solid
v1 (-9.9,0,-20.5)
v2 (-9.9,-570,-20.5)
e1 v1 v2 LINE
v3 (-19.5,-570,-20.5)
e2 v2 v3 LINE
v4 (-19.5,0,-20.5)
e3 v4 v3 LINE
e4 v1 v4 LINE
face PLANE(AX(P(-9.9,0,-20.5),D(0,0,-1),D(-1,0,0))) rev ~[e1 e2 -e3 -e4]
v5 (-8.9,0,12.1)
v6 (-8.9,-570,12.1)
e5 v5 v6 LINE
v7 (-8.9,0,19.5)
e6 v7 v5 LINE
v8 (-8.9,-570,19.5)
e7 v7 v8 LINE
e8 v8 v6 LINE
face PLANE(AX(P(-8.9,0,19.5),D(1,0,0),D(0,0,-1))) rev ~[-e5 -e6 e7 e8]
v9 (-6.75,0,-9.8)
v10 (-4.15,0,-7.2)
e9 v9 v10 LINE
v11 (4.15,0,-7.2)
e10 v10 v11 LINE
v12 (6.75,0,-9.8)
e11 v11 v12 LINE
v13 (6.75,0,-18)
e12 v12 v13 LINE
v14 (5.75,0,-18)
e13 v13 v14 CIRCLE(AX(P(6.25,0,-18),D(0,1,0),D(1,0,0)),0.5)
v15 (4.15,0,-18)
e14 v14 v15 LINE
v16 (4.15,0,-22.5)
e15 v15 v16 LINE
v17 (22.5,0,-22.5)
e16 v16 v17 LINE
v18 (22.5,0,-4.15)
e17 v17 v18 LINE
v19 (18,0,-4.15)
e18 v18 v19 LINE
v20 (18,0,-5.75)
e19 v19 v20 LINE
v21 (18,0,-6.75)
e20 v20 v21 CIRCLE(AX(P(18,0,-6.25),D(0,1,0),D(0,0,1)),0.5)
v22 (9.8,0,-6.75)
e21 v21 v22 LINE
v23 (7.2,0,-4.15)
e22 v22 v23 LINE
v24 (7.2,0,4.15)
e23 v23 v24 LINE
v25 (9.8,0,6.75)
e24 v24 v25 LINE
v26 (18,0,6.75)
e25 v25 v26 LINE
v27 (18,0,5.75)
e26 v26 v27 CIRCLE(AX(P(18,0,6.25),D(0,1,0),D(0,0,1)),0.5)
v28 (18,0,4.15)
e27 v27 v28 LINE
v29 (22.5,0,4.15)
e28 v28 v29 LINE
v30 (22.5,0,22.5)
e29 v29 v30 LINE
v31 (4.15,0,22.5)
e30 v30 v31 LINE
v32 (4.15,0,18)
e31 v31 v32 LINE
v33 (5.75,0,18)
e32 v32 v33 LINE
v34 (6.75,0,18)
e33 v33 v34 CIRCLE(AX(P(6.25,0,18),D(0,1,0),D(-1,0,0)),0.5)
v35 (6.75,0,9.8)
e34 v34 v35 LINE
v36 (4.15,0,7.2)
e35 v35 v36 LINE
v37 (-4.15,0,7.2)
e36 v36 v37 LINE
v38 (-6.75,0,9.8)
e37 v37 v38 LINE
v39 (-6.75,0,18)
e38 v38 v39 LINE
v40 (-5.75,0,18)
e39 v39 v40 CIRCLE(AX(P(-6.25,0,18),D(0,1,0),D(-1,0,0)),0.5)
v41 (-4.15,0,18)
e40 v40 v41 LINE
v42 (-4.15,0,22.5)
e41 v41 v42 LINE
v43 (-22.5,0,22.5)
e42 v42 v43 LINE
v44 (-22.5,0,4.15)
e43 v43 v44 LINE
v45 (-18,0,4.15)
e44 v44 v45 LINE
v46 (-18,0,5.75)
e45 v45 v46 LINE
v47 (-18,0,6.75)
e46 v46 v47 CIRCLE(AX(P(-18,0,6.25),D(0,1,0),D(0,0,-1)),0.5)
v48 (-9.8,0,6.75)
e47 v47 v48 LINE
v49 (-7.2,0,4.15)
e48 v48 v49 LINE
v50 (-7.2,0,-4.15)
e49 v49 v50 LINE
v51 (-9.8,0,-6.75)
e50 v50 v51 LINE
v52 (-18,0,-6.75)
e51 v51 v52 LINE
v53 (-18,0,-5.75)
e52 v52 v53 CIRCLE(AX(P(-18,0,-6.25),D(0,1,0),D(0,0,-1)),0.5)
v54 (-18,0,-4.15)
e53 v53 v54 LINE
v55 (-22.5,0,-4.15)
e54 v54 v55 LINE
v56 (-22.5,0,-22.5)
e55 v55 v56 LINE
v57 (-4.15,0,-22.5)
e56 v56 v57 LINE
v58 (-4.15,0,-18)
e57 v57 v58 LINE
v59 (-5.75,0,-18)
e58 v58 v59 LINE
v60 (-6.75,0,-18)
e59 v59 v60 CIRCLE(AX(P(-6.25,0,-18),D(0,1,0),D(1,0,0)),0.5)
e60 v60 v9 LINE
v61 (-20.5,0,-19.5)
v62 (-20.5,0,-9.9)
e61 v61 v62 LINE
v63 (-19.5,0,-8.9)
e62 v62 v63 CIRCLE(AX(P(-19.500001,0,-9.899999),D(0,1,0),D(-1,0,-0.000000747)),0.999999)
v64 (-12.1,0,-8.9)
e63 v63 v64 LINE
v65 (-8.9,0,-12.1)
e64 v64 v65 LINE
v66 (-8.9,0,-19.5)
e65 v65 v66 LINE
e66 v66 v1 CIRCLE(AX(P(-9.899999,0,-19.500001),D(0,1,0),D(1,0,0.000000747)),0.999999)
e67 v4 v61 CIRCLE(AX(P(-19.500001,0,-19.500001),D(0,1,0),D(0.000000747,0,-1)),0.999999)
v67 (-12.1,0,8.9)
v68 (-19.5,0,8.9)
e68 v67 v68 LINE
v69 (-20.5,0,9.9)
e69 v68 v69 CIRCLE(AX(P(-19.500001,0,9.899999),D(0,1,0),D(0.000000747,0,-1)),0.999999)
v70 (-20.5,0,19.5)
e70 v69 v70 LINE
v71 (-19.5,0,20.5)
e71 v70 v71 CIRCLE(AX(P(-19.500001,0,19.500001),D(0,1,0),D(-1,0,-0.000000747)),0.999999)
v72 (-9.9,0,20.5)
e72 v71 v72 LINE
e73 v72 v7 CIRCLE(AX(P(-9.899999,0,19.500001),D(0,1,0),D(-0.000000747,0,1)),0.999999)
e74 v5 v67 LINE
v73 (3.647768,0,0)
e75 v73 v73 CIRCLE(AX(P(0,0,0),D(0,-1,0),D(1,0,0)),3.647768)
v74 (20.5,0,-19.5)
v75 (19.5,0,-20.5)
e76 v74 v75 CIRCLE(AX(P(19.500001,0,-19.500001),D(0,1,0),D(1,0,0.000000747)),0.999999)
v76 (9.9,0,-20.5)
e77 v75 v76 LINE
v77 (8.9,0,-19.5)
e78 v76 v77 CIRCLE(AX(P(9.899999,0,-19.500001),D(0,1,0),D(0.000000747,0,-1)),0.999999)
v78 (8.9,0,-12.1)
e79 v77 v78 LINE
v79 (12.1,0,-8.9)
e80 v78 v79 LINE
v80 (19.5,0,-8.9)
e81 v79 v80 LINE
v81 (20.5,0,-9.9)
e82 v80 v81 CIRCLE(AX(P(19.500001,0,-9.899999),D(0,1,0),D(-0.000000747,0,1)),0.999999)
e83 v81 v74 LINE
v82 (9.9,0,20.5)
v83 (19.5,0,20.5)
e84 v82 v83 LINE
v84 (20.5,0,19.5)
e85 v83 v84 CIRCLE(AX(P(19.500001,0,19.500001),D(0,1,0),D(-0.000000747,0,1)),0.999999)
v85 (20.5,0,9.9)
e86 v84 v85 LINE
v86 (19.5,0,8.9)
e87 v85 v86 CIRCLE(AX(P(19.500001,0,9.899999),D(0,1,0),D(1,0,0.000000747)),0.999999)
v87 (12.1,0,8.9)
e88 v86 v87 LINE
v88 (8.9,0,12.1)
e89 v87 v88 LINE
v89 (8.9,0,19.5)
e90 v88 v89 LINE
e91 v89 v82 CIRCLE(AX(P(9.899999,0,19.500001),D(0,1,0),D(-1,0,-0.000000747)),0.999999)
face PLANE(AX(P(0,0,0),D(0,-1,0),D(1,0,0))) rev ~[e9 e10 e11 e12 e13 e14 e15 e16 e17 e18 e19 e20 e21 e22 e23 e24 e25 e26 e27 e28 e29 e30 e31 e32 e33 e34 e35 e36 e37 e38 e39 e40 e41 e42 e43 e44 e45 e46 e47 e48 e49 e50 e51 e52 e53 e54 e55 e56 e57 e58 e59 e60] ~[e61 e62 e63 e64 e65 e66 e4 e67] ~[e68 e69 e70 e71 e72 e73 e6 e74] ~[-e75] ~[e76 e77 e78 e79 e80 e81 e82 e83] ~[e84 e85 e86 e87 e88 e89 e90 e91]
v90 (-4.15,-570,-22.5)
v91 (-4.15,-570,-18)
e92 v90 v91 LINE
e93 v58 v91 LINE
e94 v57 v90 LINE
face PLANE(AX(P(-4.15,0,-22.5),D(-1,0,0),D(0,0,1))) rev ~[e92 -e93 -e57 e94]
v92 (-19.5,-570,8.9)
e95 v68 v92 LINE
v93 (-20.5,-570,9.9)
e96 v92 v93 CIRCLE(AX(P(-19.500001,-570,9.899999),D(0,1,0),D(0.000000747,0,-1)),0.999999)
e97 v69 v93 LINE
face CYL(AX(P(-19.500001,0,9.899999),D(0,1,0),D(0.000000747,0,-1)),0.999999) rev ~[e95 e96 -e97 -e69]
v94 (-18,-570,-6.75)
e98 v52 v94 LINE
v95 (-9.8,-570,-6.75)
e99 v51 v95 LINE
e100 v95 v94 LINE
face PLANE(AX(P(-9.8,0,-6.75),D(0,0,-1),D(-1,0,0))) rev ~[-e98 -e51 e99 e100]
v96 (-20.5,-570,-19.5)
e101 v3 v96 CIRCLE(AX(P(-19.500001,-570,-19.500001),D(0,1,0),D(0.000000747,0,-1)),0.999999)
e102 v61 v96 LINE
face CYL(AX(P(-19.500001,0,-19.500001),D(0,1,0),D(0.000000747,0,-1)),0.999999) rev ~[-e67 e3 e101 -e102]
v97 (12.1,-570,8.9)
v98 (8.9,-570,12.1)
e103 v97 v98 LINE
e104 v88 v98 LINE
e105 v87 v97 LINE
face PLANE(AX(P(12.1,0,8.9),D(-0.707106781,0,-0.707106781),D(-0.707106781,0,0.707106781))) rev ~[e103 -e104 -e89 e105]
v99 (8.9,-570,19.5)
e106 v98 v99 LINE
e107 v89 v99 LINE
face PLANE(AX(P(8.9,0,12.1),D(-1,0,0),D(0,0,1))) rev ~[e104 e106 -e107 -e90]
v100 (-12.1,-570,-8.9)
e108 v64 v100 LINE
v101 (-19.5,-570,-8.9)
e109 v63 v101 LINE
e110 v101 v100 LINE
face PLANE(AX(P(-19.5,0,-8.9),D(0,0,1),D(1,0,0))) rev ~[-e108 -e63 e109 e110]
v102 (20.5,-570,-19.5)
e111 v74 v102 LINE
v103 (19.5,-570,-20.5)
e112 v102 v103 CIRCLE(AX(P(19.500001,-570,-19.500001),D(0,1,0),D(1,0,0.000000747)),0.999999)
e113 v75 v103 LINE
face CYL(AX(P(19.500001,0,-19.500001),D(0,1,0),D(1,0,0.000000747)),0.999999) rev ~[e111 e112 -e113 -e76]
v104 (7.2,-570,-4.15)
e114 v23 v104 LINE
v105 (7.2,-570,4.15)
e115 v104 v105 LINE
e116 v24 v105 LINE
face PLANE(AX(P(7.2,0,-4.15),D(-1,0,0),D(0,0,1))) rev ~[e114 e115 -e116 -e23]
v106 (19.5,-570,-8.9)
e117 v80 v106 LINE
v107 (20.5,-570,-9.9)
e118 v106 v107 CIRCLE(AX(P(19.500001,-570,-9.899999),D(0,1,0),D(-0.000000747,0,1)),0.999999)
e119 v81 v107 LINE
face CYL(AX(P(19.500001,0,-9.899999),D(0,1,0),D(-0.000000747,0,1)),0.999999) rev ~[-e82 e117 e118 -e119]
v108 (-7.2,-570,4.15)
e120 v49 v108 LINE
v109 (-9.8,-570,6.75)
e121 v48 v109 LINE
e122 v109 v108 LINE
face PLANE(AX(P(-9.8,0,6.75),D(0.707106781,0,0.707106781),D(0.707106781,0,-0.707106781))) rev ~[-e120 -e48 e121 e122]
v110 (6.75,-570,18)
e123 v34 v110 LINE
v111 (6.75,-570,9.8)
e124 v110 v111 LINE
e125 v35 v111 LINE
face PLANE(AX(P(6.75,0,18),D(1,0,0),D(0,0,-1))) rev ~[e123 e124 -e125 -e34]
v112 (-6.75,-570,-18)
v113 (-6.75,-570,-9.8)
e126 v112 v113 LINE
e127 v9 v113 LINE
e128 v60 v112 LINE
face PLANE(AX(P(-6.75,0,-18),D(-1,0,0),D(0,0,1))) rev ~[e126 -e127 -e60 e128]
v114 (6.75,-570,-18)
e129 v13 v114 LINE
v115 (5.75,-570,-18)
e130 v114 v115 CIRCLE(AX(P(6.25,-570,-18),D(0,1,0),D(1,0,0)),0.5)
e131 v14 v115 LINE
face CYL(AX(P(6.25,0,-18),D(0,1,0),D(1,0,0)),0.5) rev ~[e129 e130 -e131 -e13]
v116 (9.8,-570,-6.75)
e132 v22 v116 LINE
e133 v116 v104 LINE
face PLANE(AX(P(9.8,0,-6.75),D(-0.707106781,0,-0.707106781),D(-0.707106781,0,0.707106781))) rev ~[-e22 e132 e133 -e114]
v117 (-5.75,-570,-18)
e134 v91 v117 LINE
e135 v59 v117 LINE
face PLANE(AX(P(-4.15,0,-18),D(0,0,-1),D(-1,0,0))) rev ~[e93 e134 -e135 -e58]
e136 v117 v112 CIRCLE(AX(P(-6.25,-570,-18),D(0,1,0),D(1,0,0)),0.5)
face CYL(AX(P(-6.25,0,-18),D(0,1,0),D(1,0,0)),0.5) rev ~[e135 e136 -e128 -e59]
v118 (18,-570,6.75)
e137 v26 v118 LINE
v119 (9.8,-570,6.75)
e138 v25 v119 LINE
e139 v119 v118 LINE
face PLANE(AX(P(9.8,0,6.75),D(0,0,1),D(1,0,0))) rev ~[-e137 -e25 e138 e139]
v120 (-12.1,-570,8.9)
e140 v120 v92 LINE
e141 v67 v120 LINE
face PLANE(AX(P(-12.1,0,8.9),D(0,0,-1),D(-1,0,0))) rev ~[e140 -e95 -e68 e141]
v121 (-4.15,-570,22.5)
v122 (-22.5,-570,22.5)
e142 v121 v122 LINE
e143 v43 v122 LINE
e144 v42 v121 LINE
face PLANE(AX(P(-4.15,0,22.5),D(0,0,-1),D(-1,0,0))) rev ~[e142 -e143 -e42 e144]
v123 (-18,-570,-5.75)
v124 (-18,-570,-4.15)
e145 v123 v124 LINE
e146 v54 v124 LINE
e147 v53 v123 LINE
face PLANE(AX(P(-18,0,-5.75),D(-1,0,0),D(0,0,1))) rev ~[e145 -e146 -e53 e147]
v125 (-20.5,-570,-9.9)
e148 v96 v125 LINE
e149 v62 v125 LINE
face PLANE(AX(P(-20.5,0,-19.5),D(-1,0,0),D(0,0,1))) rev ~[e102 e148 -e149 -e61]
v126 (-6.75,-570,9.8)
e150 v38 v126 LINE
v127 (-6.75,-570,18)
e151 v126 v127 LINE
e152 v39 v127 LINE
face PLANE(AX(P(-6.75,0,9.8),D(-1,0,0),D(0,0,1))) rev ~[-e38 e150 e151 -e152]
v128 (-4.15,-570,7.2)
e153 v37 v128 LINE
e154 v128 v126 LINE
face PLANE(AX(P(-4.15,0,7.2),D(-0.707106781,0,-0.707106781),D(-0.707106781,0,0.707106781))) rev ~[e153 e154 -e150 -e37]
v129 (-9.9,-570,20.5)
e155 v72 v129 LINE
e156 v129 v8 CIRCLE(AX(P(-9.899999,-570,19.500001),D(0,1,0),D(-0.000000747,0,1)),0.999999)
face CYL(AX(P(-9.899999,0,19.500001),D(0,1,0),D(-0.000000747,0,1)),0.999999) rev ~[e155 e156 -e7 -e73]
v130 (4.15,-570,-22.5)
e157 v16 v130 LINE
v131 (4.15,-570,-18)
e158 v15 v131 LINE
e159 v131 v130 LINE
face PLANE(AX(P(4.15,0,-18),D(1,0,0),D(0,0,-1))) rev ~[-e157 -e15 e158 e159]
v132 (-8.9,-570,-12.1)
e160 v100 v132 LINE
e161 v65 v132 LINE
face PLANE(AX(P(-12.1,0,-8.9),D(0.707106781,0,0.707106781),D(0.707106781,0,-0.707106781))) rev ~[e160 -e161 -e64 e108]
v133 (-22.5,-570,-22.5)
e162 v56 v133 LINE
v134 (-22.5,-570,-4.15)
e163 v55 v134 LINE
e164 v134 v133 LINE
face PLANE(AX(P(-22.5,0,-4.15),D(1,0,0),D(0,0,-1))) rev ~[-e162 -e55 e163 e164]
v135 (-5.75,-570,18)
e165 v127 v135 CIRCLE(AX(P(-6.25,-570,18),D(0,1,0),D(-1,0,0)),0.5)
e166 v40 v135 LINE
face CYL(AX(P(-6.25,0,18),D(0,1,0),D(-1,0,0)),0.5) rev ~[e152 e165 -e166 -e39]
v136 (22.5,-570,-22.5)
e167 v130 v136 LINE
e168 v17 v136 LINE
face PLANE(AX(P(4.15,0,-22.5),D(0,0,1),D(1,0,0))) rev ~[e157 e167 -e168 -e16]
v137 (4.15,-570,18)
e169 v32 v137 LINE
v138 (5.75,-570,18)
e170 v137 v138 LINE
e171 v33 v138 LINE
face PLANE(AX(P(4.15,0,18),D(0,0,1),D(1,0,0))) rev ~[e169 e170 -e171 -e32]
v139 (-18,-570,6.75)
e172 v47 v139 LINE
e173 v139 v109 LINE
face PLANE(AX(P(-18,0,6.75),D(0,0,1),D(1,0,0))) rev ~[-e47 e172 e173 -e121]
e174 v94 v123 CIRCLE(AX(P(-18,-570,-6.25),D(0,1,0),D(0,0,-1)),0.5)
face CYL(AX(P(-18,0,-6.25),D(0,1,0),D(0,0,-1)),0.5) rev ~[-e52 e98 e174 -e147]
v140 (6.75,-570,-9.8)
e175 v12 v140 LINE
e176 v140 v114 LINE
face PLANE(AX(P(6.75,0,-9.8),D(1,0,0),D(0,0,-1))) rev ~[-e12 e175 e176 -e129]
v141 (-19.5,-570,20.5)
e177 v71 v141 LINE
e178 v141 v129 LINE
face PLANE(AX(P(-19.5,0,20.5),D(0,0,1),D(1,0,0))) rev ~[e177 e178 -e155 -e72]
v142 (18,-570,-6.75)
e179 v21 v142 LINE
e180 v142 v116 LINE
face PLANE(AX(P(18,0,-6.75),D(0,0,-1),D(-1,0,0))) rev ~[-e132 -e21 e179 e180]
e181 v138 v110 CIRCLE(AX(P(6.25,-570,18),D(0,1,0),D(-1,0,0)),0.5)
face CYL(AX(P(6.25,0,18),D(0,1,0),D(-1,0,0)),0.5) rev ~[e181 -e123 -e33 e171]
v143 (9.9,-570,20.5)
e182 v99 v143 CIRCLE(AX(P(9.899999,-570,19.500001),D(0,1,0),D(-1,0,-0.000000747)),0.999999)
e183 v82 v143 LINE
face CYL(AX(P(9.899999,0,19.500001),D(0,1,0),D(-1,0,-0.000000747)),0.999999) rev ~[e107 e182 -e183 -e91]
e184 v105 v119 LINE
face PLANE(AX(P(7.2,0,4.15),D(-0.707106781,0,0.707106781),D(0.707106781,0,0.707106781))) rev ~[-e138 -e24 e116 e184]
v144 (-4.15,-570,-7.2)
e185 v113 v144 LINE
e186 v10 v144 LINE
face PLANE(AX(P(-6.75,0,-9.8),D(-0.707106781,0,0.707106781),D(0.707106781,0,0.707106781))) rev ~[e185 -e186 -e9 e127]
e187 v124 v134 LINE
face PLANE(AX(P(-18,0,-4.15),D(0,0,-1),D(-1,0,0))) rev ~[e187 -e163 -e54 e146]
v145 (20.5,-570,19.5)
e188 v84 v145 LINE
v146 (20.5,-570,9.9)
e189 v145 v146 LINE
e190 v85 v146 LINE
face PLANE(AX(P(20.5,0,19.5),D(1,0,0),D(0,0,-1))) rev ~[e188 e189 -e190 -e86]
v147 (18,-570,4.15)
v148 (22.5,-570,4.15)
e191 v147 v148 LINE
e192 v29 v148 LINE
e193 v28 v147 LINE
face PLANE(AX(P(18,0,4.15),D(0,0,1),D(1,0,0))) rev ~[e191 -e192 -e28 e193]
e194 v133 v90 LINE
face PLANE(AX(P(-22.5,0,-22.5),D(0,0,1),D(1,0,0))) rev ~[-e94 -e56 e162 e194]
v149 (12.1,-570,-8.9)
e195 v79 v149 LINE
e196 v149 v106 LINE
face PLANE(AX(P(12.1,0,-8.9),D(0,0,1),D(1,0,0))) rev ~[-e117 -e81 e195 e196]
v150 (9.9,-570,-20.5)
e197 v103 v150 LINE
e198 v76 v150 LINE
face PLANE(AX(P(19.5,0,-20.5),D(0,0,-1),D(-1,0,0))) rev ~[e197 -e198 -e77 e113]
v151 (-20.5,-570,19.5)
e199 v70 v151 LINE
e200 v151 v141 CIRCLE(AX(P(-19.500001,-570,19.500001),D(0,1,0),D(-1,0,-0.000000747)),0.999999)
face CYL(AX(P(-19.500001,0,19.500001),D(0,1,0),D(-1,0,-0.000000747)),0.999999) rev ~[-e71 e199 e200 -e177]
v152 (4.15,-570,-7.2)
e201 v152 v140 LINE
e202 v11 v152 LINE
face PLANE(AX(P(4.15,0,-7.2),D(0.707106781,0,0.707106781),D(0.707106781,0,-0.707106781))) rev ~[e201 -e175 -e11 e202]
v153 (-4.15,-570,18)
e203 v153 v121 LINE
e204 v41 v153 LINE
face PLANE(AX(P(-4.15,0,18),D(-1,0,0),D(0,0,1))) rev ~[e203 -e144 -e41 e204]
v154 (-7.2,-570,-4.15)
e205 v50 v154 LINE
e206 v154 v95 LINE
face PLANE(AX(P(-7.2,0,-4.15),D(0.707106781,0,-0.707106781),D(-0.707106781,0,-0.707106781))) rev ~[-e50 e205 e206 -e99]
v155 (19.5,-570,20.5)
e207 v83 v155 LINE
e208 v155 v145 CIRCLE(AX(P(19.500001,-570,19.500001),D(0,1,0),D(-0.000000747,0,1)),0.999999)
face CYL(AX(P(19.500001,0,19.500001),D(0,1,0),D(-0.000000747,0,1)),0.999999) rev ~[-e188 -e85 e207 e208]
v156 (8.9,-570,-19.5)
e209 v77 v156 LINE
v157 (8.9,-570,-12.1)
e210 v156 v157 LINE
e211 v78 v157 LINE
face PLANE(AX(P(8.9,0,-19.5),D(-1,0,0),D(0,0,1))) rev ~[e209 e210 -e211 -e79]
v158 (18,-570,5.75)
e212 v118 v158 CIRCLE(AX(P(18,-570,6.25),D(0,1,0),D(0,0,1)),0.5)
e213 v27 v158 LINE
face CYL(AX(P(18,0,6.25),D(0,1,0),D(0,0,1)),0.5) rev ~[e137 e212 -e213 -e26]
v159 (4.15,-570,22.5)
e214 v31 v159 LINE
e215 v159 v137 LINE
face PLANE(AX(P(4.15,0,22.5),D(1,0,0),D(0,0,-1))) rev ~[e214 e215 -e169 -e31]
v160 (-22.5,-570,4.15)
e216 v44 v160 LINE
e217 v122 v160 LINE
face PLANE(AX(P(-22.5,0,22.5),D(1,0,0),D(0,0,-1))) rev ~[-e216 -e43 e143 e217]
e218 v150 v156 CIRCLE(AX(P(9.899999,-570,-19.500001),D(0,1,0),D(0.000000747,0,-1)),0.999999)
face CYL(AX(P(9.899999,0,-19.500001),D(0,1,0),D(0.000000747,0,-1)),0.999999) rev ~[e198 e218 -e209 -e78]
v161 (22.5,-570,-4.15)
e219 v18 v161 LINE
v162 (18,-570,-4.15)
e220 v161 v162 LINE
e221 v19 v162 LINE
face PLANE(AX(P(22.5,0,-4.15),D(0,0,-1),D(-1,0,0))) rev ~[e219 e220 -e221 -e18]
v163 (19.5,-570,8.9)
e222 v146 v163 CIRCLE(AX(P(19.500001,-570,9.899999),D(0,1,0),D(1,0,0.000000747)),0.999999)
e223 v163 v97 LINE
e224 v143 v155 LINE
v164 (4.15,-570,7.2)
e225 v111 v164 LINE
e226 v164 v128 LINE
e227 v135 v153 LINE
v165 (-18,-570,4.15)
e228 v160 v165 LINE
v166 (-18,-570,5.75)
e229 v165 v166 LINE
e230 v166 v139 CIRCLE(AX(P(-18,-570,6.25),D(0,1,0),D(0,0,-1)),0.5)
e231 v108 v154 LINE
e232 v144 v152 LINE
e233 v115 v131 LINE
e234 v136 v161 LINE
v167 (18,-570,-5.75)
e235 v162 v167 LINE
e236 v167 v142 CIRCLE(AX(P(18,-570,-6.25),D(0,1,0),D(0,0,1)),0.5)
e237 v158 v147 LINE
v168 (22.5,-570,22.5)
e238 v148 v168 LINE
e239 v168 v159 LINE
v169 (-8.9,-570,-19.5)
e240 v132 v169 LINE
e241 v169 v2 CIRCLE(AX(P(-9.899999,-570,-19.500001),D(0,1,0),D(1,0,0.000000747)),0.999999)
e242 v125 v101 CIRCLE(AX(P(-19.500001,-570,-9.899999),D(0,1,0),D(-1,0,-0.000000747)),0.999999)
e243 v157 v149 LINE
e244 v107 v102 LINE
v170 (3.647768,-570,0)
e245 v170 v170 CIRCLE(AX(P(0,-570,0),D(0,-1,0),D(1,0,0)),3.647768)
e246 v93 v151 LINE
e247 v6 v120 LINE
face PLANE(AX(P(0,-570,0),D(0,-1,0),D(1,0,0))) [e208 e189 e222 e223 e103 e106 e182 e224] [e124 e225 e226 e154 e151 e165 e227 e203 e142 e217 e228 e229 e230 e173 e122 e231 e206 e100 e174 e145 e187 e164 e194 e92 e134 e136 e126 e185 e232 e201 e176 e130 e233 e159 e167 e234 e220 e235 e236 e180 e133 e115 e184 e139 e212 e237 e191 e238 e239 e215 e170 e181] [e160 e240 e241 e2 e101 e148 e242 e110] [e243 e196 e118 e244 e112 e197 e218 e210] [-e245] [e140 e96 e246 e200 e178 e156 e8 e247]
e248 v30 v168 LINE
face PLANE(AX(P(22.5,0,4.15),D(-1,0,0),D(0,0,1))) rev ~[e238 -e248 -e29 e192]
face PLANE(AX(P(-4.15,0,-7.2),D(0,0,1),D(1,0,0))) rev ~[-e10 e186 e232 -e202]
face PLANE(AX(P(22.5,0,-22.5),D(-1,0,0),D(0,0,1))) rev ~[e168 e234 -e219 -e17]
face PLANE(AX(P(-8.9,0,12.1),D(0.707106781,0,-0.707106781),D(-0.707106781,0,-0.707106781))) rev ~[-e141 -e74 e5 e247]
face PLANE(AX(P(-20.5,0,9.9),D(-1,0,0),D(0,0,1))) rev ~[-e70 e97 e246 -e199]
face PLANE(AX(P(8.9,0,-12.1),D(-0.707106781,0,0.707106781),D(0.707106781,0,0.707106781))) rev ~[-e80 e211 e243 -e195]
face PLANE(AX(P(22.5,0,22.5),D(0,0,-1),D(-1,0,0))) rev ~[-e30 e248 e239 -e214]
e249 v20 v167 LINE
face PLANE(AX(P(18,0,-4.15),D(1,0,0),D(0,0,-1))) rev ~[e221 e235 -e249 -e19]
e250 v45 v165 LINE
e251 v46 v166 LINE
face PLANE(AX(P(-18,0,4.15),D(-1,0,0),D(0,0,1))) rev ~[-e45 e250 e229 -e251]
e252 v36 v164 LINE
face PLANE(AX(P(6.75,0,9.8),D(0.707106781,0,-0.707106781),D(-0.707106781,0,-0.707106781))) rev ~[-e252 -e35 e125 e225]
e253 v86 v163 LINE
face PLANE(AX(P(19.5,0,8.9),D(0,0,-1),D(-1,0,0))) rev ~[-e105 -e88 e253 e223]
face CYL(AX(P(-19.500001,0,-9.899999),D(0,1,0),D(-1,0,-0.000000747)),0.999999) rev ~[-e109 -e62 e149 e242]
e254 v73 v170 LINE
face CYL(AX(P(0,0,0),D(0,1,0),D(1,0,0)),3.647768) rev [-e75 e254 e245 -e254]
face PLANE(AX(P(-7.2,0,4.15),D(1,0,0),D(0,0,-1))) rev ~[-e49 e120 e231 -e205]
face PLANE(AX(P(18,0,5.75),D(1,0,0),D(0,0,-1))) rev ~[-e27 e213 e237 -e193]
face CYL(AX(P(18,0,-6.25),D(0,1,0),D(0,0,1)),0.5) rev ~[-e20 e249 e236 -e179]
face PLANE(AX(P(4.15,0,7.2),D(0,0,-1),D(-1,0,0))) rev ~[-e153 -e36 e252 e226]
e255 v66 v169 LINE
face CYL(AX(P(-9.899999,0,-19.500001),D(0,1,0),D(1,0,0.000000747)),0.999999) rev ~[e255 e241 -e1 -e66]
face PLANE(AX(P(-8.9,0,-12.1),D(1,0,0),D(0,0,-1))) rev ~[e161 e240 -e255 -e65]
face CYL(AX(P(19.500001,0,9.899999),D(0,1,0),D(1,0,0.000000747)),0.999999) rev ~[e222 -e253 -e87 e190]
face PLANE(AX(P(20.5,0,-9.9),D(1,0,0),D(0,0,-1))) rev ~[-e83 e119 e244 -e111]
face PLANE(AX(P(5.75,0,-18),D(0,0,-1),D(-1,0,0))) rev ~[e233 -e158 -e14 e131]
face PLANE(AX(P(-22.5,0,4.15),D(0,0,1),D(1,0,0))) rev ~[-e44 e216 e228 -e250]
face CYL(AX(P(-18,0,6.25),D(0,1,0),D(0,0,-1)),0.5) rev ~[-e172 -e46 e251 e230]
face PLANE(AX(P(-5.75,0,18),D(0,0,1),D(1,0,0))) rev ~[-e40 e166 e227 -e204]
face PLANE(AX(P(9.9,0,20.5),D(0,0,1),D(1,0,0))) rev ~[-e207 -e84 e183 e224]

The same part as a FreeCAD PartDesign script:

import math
import FreeCAD as App
import Part
import Sketcher

V = App.Vector

doc = App.newDocument("Part")
body = doc.addObject("PartDesign::Body", "Body")

# Sketch on XZ plane
sketch1 = body.newObject("Sketcher::SketchObject", "Sketch")
sketch1.AttachmentSupport = (doc.getObject("XZ_Plane"), [""])
sketch1.MapMode = "FlatFace"
sketch1.addGeometry(Part.LineSegment(V(-4.2, 22.5, 0), V(-22.5, 22.5, 0)), False)
sketch1.addGeometry(Part.LineSegment(V(-22.5, 22.5, 0), V(-22.5, 4.2, 0)), False)
sketch1.addGeometry(Part.LineSegment(V(-22.5, 4.2, 0), V(-18, 4.2, 0)), False)
sketch1.addGeometry(Part.LineSegment(V(-18, 4.2, 0), V(-18, 5.8, 0)), False)
sketch1.addGeometry(Part.ArcOfCircle(Part.Circle(V(-18, 6.2, 0), V(0, 0, 1), 0.5), math.radians(90), math.radians(270)), False)
sketch1.addGeometry(Part.LineSegment(V(-18, 6.8, 0), V(-9.8, 6.8, 0)), False)
sketch1.addGeometry(Part.LineSegment(V(-9.8, 6.8, 0), V(-7.2, 4.2, 0)), False)
sketch1.addGeometry(Part.LineSegment(V(-7.2, 4.2, 0), V(-7.2, -4.2, 0)), False)
sketch1.addGeometry(Part.LineSegment(V(-7.2, -4.2, 0), V(-9.8, -6.8, 0)), False)
sketch1.addGeometry(Part.LineSegment(V(-9.8, -6.8, 0), V(-18, -6.8, 0)), False)
sketch1.addGeometry(Part.ArcOfCircle(Part.Circle(V(-18, -6.2, 0), V(0, 0, 1), 0.5), math.radians(90), math.radians(270)), False)
sketch1.addGeometry(Part.LineSegment(V(-18, -5.8, 0), V(-18, -4.2, 0)), False)
sketch1.addGeometry(Part.LineSegment(V(-18, -4.2, 0), V(-22.5, -4.2, 0)), False)
sketch1.addGeometry(Part.LineSegment(V(-22.5, -4.2, 0), V(-22.5, -22.5, 0)), False)
sketch1.addGeometry(Part.LineSegment(V(-22.5, -22.5, 0), V(-4.2, -22.5, 0)), False)
sketch1.addGeometry(Part.LineSegment(V(-4.2, -22.5, 0), V(-4.2, -18, 0)), False)
sketch1.addGeometry(Part.LineSegment(V(-4.2, -18, 0), V(-5.8, -18, 0)), False)
sketch1.addGeometry(Part.ArcOfCircle(Part.Circle(V(-6.2, -18, 0), V(0, 0, 1), 0.5), math.radians(180), math.radians(360)), False)
sketch1.addGeometry(Part.LineSegment(V(-6.8, -18, 0), V(-6.8, -9.8, 0)), False)
sketch1.addGeometry(Part.LineSegment(V(-6.8, -9.8, 0), V(-4.2, -7.2, 0)), False)
sketch1.addGeometry(Part.LineSegment(V(-4.2, -7.2, 0), V(4.2, -7.2, 0)), False)
sketch1.addGeometry(Part.LineSegment(V(4.2, -7.2, 0), V(6.8, -9.8, 0)), False)
sketch1.addGeometry(Part.LineSegment(V(6.8, -9.8, 0), V(6.8, -18, 0)), False)
sketch1.addGeometry(Part.ArcOfCircle(Part.Circle(V(6.2, -18, 0), V(0, 0, 1), 0.5), math.radians(180), math.radians(360)), False)
sketch1.addGeometry(Part.LineSegment(V(5.8, -18, 0), V(4.2, -18, 0)), False)
sketch1.addGeometry(Part.LineSegment(V(4.2, -18, 0), V(4.2, -22.5, 0)), False)
sketch1.addGeometry(Part.LineSegment(V(4.2, -22.5, 0), V(22.5, -22.5, 0)), False)
sketch1.addGeometry(Part.LineSegment(V(22.5, -22.5, 0), V(22.5, -4.2, 0)), False)
sketch1.addGeometry(Part.LineSegment(V(22.5, -4.2, 0), V(18, -4.2, 0)), False)
sketch1.addGeometry(Part.LineSegment(V(18, -4.2, 0), V(18, -5.8, 0)), False)
sketch1.addGeometry(Part.ArcOfCircle(Part.Circle(V(18, -6.2, 0), V(0, 0, 1), 0.5), math.radians(-90), math.radians(90)), False)
sketch1.addGeometry(Part.LineSegment(V(18, -6.8, 0), V(9.8, -6.8, 0)), False)
sketch1.addGeometry(Part.LineSegment(V(9.8, -6.8, 0), V(7.2, -4.2, 0)), False)
sketch1.addGeometry(Part.LineSegment(V(7.2, -4.2, 0), V(7.2, 4.2, 0)), False)
sketch1.addGeometry(Part.LineSegment(V(7.2, 4.2, 0), V(9.8, 6.8, 0)), False)
sketch1.addGeometry(Part.LineSegment(V(9.8, 6.8, 0), V(18, 6.8, 0)), False)
sketch1.addGeometry(Part.ArcOfCircle(Part.Circle(V(18, 6.2, 0), V(0, 0, 1), 0.5), math.radians(-90), math.radians(90)), False)
sketch1.addGeometry(Part.LineSegment(V(18, 5.8, 0), V(18, 4.2, 0)), False)
sketch1.addGeometry(Part.LineSegment(V(18, 4.2, 0), V(22.5, 4.2, 0)), False)
sketch1.addGeometry(Part.LineSegment(V(22.5, 4.2, 0), V(22.5, 22.5, 0)), False)
sketch1.addGeometry(Part.LineSegment(V(22.5, 22.5, 0), V(4.2, 22.5, 0)), False)
sketch1.addGeometry(Part.LineSegment(V(4.2, 22.5, 0), V(4.2, 18, 0)), False)
sketch1.addGeometry(Part.LineSegment(V(4.2, 18, 0), V(5.8, 18, 0)), False)
sketch1.addGeometry(Part.ArcOfCircle(Part.Circle(V(6.2, 18, 0), V(0, 0, 1), 0.5), math.radians(0), math.radians(180)), False)
sketch1.addGeometry(Part.LineSegment(V(6.8, 18, 0), V(6.8, 9.8, 0)), False)
sketch1.addGeometry(Part.LineSegment(V(6.8, 9.8, 0), V(4.2, 7.2, 0)), False)
sketch1.addGeometry(Part.LineSegment(V(4.2, 7.2, 0), V(-4.2, 7.2, 0)), False)
sketch1.addGeometry(Part.LineSegment(V(-4.2, 7.2, 0), V(-6.8, 9.8, 0)), False)
sketch1.addGeometry(Part.LineSegment(V(-6.8, 9.8, 0), V(-6.8, 18, 0)), False)
sketch1.addGeometry(Part.ArcOfCircle(Part.Circle(V(-6.2, 18, 0), V(0, 0, 1), 0.5), math.radians(0), math.radians(180)), False)
sketch1.addGeometry(Part.LineSegment(V(-5.8, 18, 0), V(-4.2, 18, 0)), False)
sketch1.addGeometry(Part.LineSegment(V(-4.2, 18, 0), V(-4.2, 22.5, 0)), False)
sketch1.addGeometry(Part.LineSegment(V(-12.1, -8.9, 0), V(-8.9, -12.1, 0)), False)
sketch1.addGeometry(Part.LineSegment(V(-8.9, -12.1, 0), V(-8.9, -19.5, 0)), False)
sketch1.addGeometry(Part.ArcOfCircle(Part.Circle(V(-9.9, -19.5, 0), V(0, 0, 1), 1), math.radians(-90), math.radians(0)), False)
sketch1.addGeometry(Part.LineSegment(V(-9.9, -20.5, 0), V(-19.5, -20.5, 0)), False)
sketch1.addGeometry(Part.ArcOfCircle(Part.Circle(V(-19.5, -19.5, 0), V(0, 0, 1), 1), math.radians(180), math.radians(270)), False)
sketch1.addGeometry(Part.LineSegment(V(-20.5, -19.5, 0), V(-20.5, -9.9, 0)), False)
sketch1.addGeometry(Part.ArcOfCircle(Part.Circle(V(-19.5, -9.9, 0), V(0, 0, 1), 1), math.radians(90), math.radians(180)), False)
sketch1.addGeometry(Part.LineSegment(V(-19.5, -8.9, 0), V(-12.1, -8.9, 0)), False)
sketch1.addGeometry(Part.LineSegment(V(8.9, -19.5, 0), V(8.9, -12.1, 0)), False)
sketch1.addGeometry(Part.LineSegment(V(8.9, -12.1, 0), V(12.1, -8.9, 0)), False)
sketch1.addGeometry(Part.LineSegment(V(12.1, -8.9, 0), V(19.5, -8.9, 0)), False)
sketch1.addGeometry(Part.ArcOfCircle(Part.Circle(V(19.5, -9.9, 0), V(0, 0, 1), 1), math.radians(0), math.radians(90)), False)
sketch1.addGeometry(Part.LineSegment(V(20.5, -9.9, 0), V(20.5, -19.5, 0)), False)
sketch1.addGeometry(Part.ArcOfCircle(Part.Circle(V(19.5, -19.5, 0), V(0, 0, 1), 1), math.radians(-90), math.radians(0)), False)
sketch1.addGeometry(Part.LineSegment(V(19.5, -20.5, 0), V(9.9, -20.5, 0)), False)
sketch1.addGeometry(Part.ArcOfCircle(Part.Circle(V(9.9, -19.5, 0), V(0, 0, 1), 1), math.radians(180), math.radians(270)), False)
sketch1.addGeometry(Part.LineSegment(V(-20.5, 9.9, 0), V(-20.5, 19.5, 0)), False)
sketch1.addGeometry(Part.ArcOfCircle(Part.Circle(V(-19.5, 19.5, 0), V(0, 0, 1), 1), math.radians(90), math.radians(180)), False)
sketch1.addGeometry(Part.LineSegment(V(-19.5, 20.5, 0), V(-9.9, 20.5, 0)), False)
sketch1.addGeometry(Part.ArcOfCircle(Part.Circle(V(-9.9, 19.5, 0), V(0, 0, 1), 1), math.radians(0), math.radians(90)), False)
sketch1.addGeometry(Part.LineSegment(V(-8.9, 19.5, 0), V(-8.9, 12.1, 0)), False)
sketch1.addGeometry(Part.LineSegment(V(-8.9, 12.1, 0), V(-12.1, 8.9, 0)), False)
sketch1.addGeometry(Part.LineSegment(V(-12.1, 8.9, 0), V(-19.5, 8.9, 0)), False)
sketch1.addGeometry(Part.ArcOfCircle(Part.Circle(V(-19.5, 9.9, 0), V(0, 0, 1), 1), math.radians(180), math.radians(270)), False)
sketch1.addGeometry(Part.Circle(V(0, 0, 0), V(0, 0, 1), 3.6), False)
sketch1.addGeometry(Part.LineSegment(V(19.5, 8.9, 0), V(12.1, 8.9, 0)), False)
sketch1.addGeometry(Part.LineSegment(V(12.1, 8.9, 0), V(8.9, 12.1, 0)), False)
sketch1.addGeometry(Part.LineSegment(V(8.9, 12.1, 0), V(8.9, 19.5, 0)), False)
sketch1.addGeometry(Part.ArcOfCircle(Part.Circle(V(9.9, 19.5, 0), V(0, 0, 1), 1), math.radians(90), math.radians(180)), False)
sketch1.addGeometry(Part.LineSegment(V(9.9, 20.5, 0), V(19.5, 20.5, 0)), False)
sketch1.addGeometry(Part.ArcOfCircle(Part.Circle(V(19.5, 19.5, 0), V(0, 0, 1), 1), math.radians(0), math.radians(90)), False)
sketch1.addGeometry(Part.LineSegment(V(20.5, 19.5, 0), V(20.5, 9.9, 0)), False)
sketch1.addGeometry(Part.ArcOfCircle(Part.Circle(V(19.5, 9.9, 0), V(0, 0, 1), 1), math.radians(-90), math.radians(0)), False)
sketch1.addConstraint(Sketcher.Constraint("Coincident", 0, 2, 1, 1))
sketch1.addConstraint(Sketcher.Constraint("Coincident", 1, 2, 2, 1))
sketch1.addConstraint(Sketcher.Constraint("Coincident", 2, 2, 3, 1))
sketch1.addConstraint(Sketcher.Constraint("Coincident", 3, 2, 4, 2))
sketch1.addConstraint(Sketcher.Constraint("Tangent", 4, 1, 5, 1))
sketch1.addConstraint(Sketcher.Constraint("Coincident", 5, 2, 6, 1))
sketch1.addConstraint(Sketcher.Constraint("Coincident", 6, 2, 7, 1))
sketch1.addConstraint(Sketcher.Constraint("Coincident", 7, 2, 8, 1))
sketch1.addConstraint(Sketcher.Constraint("Coincident", 8, 2, 9, 1))
sketch1.addConstraint(Sketcher.Constraint("Tangent", 9, 2, 10, 2))
sketch1.addConstraint(Sketcher.Constraint("Coincident", 10, 1, 11, 1))
sketch1.addConstraint(Sketcher.Constraint("Coincident", 11, 2, 12, 1))
sketch1.addConstraint(Sketcher.Constraint("Coincident", 12, 2, 13, 1))
sketch1.addConstraint(Sketcher.Constraint("Coincident", 13, 2, 14, 1))
sketch1.addConstraint(Sketcher.Constraint("Coincident", 14, 2, 15, 1))
sketch1.addConstraint(Sketcher.Constraint("Coincident", 15, 2, 16, 1))
sketch1.addConstraint(Sketcher.Constraint("Coincident", 16, 2, 17, 2))
sketch1.addConstraint(Sketcher.Constraint("Tangent", 17, 1, 18, 1))
sketch1.addConstraint(Sketcher.Constraint("Coincident", 18, 2, 19, 1))
sketch1.addConstraint(Sketcher.Constraint("Coincident", 19, 2, 20, 1))
sketch1.addConstraint(Sketcher.Constraint("Coincident", 20, 2, 21, 1))
sketch1.addConstraint(Sketcher.Constraint("Coincident", 21, 2, 22, 1))
sketch1.addConstraint(Sketcher.Constraint("Tangent", 22, 2, 23, 2))
sketch1.addConstraint(Sketcher.Constraint("Coincident", 23, 1, 24, 1))
sketch1.addConstraint(Sketcher.Constraint("Coincident", 24, 2, 25, 1))
sketch1.addConstraint(Sketcher.Constraint("Coincident", 25, 2, 26, 1))
sketch1.addConstraint(Sketcher.Constraint("Coincident", 26, 2, 27, 1))
sketch1.addConstraint(Sketcher.Constraint("Coincident", 27, 2, 28, 1))
sketch1.addConstraint(Sketcher.Constraint("Coincident", 28, 2, 29, 1))
sketch1.addConstraint(Sketcher.Constraint("Coincident", 29, 2, 30, 2))
sketch1.addConstraint(Sketcher.Constraint("Tangent", 30, 1, 31, 1))
sketch1.addConstraint(Sketcher.Constraint("Coincident", 31, 2, 32, 1))
sketch1.addConstraint(Sketcher.Constraint("Coincident", 32, 2, 33, 1))
sketch1.addConstraint(Sketcher.Constraint("Coincident", 33, 2, 34, 1))
sketch1.addConstraint(Sketcher.Constraint("Coincident", 34, 2, 35, 1))
sketch1.addConstraint(Sketcher.Constraint("Tangent", 35, 2, 36, 2))
sketch1.addConstraint(Sketcher.Constraint("Coincident", 36, 1, 37, 1))
sketch1.addConstraint(Sketcher.Constraint("Coincident", 37, 2, 38, 1))
sketch1.addConstraint(Sketcher.Constraint("Coincident", 38, 2, 39, 1))
sketch1.addConstraint(Sketcher.Constraint("Coincident", 39, 2, 40, 1))
sketch1.addConstraint(Sketcher.Constraint("Coincident", 40, 2, 41, 1))
sketch1.addConstraint(Sketcher.Constraint("Coincident", 41, 2, 42, 1))
sketch1.addConstraint(Sketcher.Constraint("Coincident", 42, 2, 43, 2))
sketch1.addConstraint(Sketcher.Constraint("Tangent", 43, 1, 44, 1))
sketch1.addConstraint(Sketcher.Constraint("Coincident", 44, 2, 45, 1))
sketch1.addConstraint(Sketcher.Constraint("Coincident", 45, 2, 46, 1))
sketch1.addConstraint(Sketcher.Constraint("Coincident", 46, 2, 47, 1))
sketch1.addConstraint(Sketcher.Constraint("Coincident", 47, 2, 48, 1))
sketch1.addConstraint(Sketcher.Constraint("Tangent", 48, 2, 49, 2))
sketch1.addConstraint(Sketcher.Constraint("Coincident", 49, 1, 50, 1))
sketch1.addConstraint(Sketcher.Constraint("Coincident", 50, 2, 51, 1))
sketch1.addConstraint(Sketcher.Constraint("Coincident", 51, 2, 0, 1))
sketch1.addConstraint(Sketcher.Constraint("Coincident", 52, 2, 53, 1))
sketch1.addConstraint(Sketcher.Constraint("Tangent", 53, 2, 54, 2))
sketch1.addConstraint(Sketcher.Constraint("Tangent", 54, 1, 55, 1))
sketch1.addConstraint(Sketcher.Constraint("Tangent", 55, 2, 56, 2))
sketch1.addConstraint(Sketcher.Constraint("Tangent", 56, 1, 57, 1))
sketch1.addConstraint(Sketcher.Constraint("Tangent", 57, 2, 58, 2))
sketch1.addConstraint(Sketcher.Constraint("Tangent", 58, 1, 59, 1))
sketch1.addConstraint(Sketcher.Constraint("Coincident", 59, 2, 52, 1))
sketch1.addConstraint(Sketcher.Constraint("Coincident", 60, 2, 61, 1))
sketch1.addConstraint(Sketcher.Constraint("Coincident", 61, 2, 62, 1))
sketch1.addConstraint(Sketcher.Constraint("Tangent", 62, 2, 63, 2))
sketch1.addConstraint(Sketcher.Constraint("Tangent", 63, 1, 64, 1))
sketch1.addConstraint(Sketcher.Constraint("Tangent", 64, 2, 65, 2))
sketch1.addConstraint(Sketcher.Constraint("Tangent", 65, 1, 66, 1))
sketch1.addConstraint(Sketcher.Constraint("Tangent", 66, 2, 67, 2))
sketch1.addConstraint(Sketcher.Constraint("Tangent", 67, 1, 60, 1))
sketch1.addConstraint(Sketcher.Constraint("Tangent", 68, 2, 69, 2))
sketch1.addConstraint(Sketcher.Constraint("Tangent", 69, 1, 70, 1))
sketch1.addConstraint(Sketcher.Constraint("Tangent", 70, 2, 71, 2))
sketch1.addConstraint(Sketcher.Constraint("Tangent", 71, 1, 72, 1))
sketch1.addConstraint(Sketcher.Constraint("Coincident", 72, 2, 73, 1))
sketch1.addConstraint(Sketcher.Constraint("Coincident", 73, 2, 74, 1))
sketch1.addConstraint(Sketcher.Constraint("Tangent", 74, 2, 75, 2))
sketch1.addConstraint(Sketcher.Constraint("Tangent", 75, 1, 68, 1))
sketch1.addConstraint(Sketcher.Constraint("Coincident", 77, 2, 78, 1))
sketch1.addConstraint(Sketcher.Constraint("Coincident", 78, 2, 79, 1))
sketch1.addConstraint(Sketcher.Constraint("Tangent", 79, 2, 80, 2))
sketch1.addConstraint(Sketcher.Constraint("Tangent", 80, 1, 81, 1))
sketch1.addConstraint(Sketcher.Constraint("Tangent", 81, 2, 82, 2))
sketch1.addConstraint(Sketcher.Constraint("Tangent", 82, 1, 83, 1))
sketch1.addConstraint(Sketcher.Constraint("Tangent", 83, 2, 84, 2))
sketch1.addConstraint(Sketcher.Constraint("Tangent", 84, 1, 77, 1))
sketch1.addConstraint(Sketcher.Constraint("Horizontal", 0))
sketch1.addConstraint(Sketcher.Constraint("Vertical", 1))
sketch1.addConstraint(Sketcher.Constraint("Horizontal", 2))
sketch1.addConstraint(Sketcher.Constraint("Vertical", 3))
sketch1.addConstraint(Sketcher.Constraint("Horizontal", 5))
sketch1.addConstraint(Sketcher.Constraint("Vertical", 7))
sketch1.addConstraint(Sketcher.Constraint("Horizontal", 9))
sketch1.addConstraint(Sketcher.Constraint("Vertical", 11))
sketch1.addConstraint(Sketcher.Constraint("Horizontal", 12))
sketch1.addConstraint(Sketcher.Constraint("Vertical", 13))
sketch1.addConstraint(Sketcher.Constraint("Horizontal", 14))
sketch1.addConstraint(Sketcher.Constraint("Vertical", 15))
sketch1.addConstraint(Sketcher.Constraint("Horizontal", 16))
sketch1.addConstraint(Sketcher.Constraint("Vertical", 18))
sketch1.addConstraint(Sketcher.Constraint("Horizontal", 20))
sketch1.addConstraint(Sketcher.Constraint("Vertical", 22))
sketch1.addConstraint(Sketcher.Constraint("Horizontal", 24))
sketch1.addConstraint(Sketcher.Constraint("Vertical", 25))
sketch1.addConstraint(Sketcher.Constraint("Horizontal", 26))
sketch1.addConstraint(Sketcher.Constraint("Vertical", 27))
sketch1.addConstraint(Sketcher.Constraint("Horizontal", 28))
sketch1.addConstraint(Sketcher.Constraint("Vertical", 29))
sketch1.addConstraint(Sketcher.Constraint("Horizontal", 31))
sketch1.addConstraint(Sketcher.Constraint("Vertical", 33))
sketch1.addConstraint(Sketcher.Constraint("Horizontal", 35))
sketch1.addConstraint(Sketcher.Constraint("Vertical", 37))
sketch1.addConstraint(Sketcher.Constraint("Horizontal", 38))
sketch1.addConstraint(Sketcher.Constraint("Vertical", 39))
sketch1.addConstraint(Sketcher.Constraint("Horizontal", 40))
sketch1.addConstraint(Sketcher.Constraint("Vertical", 41))
sketch1.addConstraint(Sketcher.Constraint("Horizontal", 42))
sketch1.addConstraint(Sketcher.Constraint("Vertical", 44))
sketch1.addConstraint(Sketcher.Constraint("Horizontal", 46))
sketch1.addConstraint(Sketcher.Constraint("Vertical", 48))
sketch1.addConstraint(Sketcher.Constraint("Horizontal", 50))
sketch1.addConstraint(Sketcher.Constraint("Vertical", 51))
sketch1.addConstraint(Sketcher.Constraint("Vertical", 53))
sketch1.addConstraint(Sketcher.Constraint("Horizontal", 55))
sketch1.addConstraint(Sketcher.Constraint("Vertical", 57))
sketch1.addConstraint(Sketcher.Constraint("Horizontal", 59))
sketch1.addConstraint(Sketcher.Constraint("Vertical", 60))
sketch1.addConstraint(Sketcher.Constraint("Horizontal", 62))
sketch1.addConstraint(Sketcher.Constraint("Vertical", 64))
sketch1.addConstraint(Sketcher.Constraint("Horizontal", 66))
sketch1.addConstraint(Sketcher.Constraint("Vertical", 68))
sketch1.addConstraint(Sketcher.Constraint("Horizontal", 70))
sketch1.addConstraint(Sketcher.Constraint("Vertical", 72))
sketch1.addConstraint(Sketcher.Constraint("Horizontal", 74))
sketch1.addConstraint(Sketcher.Constraint("Horizontal", 77))
sketch1.addConstraint(Sketcher.Constraint("Vertical", 79))
sketch1.addConstraint(Sketcher.Constraint("Horizontal", 81))
sketch1.addConstraint(Sketcher.Constraint("Vertical", 83))
sketch1.addConstraint(Sketcher.Constraint("Coincident", 76, 3, -1, 1))
sketch1.addConstraint(Sketcher.Constraint("Equal", 4, 10))
sketch1.addConstraint(Sketcher.Constraint("Equal", 10, 17))
sketch1.addConstraint(Sketcher.Constraint("Equal", 17, 23))
sketch1.addConstraint(Sketcher.Constraint("Equal", 23, 30))
sketch1.addConstraint(Sketcher.Constraint("Equal", 30, 36))
sketch1.addConstraint(Sketcher.Constraint("Equal", 36, 43))
sketch1.addConstraint(Sketcher.Constraint("Equal", 43, 49))
sketch1.addConstraint(Sketcher.Constraint("Equal", 54, 56))
sketch1.addConstraint(Sketcher.Constraint("Equal", 56, 58))
sketch1.addConstraint(Sketcher.Constraint("Equal", 58, 63))
sketch1.addConstraint(Sketcher.Constraint("Equal", 63, 65))
sketch1.addConstraint(Sketcher.Constraint("Equal", 65, 67))
sketch1.addConstraint(Sketcher.Constraint("Equal", 67, 69))
sketch1.addConstraint(Sketcher.Constraint("Equal", 69, 71))
sketch1.addConstraint(Sketcher.Constraint("Equal", 71, 75))
sketch1.addConstraint(Sketcher.Constraint("Equal", 75, 80))
sketch1.addConstraint(Sketcher.Constraint("Equal", 80, 82))
sketch1.addConstraint(Sketcher.Constraint("Equal", 82, 84))
sketch1.addConstraint(Sketcher.Constraint("Symmetric", 4, 3, 30, 3, -1, 1))
sketch1.addConstraint(Sketcher.Constraint("Symmetric", 10, 3, 36, 3, -1, 1))
sketch1.addConstraint(Sketcher.Constraint("Symmetric", 17, 3, 43, 3, -1, 1))
sketch1.addConstraint(Sketcher.Constraint("Symmetric", 23, 3, 49, 3, -1, 1))
sketch1.addConstraint(Sketcher.Constraint("Symmetric", 65, 3, 69, 3, -1, 1))
sketch1.addConstraint(Sketcher.Constraint("Symmetric", 54, 3, 80, 3, -1, 1))
sketch1.addConstraint(Sketcher.Constraint("Symmetric", 58, 3, 84, 3, -1, 1))
sketch1.addConstraint(Sketcher.Constraint("Symmetric", 0, 2, 26, 2, -1, 1))
sketch1.addConstraint(Sketcher.Constraint("Symmetric", 2, 2, 28, 2, -1, 1))
sketch1.addConstraint(Sketcher.Constraint("Symmetric", 6, 2, 32, 2, -1, 1))
sketch1.addConstraint(Sketcher.Constraint("Symmetric", 11, 2, 37, 2, -1, 1))
sketch1.addConstraint(Sketcher.Constraint("Symmetric", 13, 2, 39, 2, -1, 1))
sketch1.addConstraint(Sketcher.Constraint("Symmetric", 15, 2, 41, 2, -1, 1))
sketch1.addConstraint(Sketcher.Constraint("Symmetric", 19, 2, 45, 2, -1, 1))
sketch1.addConstraint(Sketcher.Constraint("Symmetric", 24, 2, 50, 2, -1, 1))
sketch1.addConstraint(Sketcher.Constraint("Symmetric", 60, 2, 72, 2, -1, 1))
sketch1.addConstraint(Sketcher.Constraint("Symmetric", 61, 2, 73, 2, -1, 1))
sketch1.addConstraint(Sketcher.Constraint("Symmetric", 17, 3, 23, 3, -2))
sketch1.addConstraint(Sketcher.Constraint("Symmetric", 10, 3, 30, 3, -2))
sketch1.addConstraint(Sketcher.Constraint("Symmetric", 58, 3, 63, 3, -2))
sketch1.addConstraint(Sketcher.Constraint("Symmetric", 54, 3, 67, 3, -2))
sketch1.addConstraint(Sketcher.Constraint("Symmetric", 15, 2, 24, 2, -2))
sketch1.addConstraint(Sketcher.Constraint("Symmetric", 13, 2, 26, 2, -2))
sketch1.addConstraint(Sketcher.Constraint("Symmetric", 11, 2, 28, 2, -2))
sketch1.addConstraint(Sketcher.Constraint("Perpendicular", 6, 8))
sketch1.addConstraint(Sketcher.Constraint("Parallel", 8, 19))
sketch1.addConstraint(Sketcher.Constraint("Perpendicular", 19, 21))
sketch1.addConstraint(Sketcher.Constraint("Parallel", 21, 32))
sketch1.addConstraint(Sketcher.Constraint("Perpendicular", 32, 34))
sketch1.addConstraint(Sketcher.Constraint("Parallel", 34, 45))
sketch1.addConstraint(Sketcher.Constraint("Perpendicular", 45, 47))
sketch1.addConstraint(Sketcher.Constraint("Parallel", 47, 52))
sketch1.addConstraint(Sketcher.Constraint("Perpendicular", 52, 61))
sketch1.addConstraint(Sketcher.Constraint("Perpendicular", 73, 78))
sketch1.addConstraint(Sketcher.Constraint("Horizontal", 2, 2, 6, 2))
sketch1.addConstraint(Sketcher.Constraint("Horizontal", 7, 2, 11, 2))
sketch1.addConstraint(Sketcher.Constraint("Horizontal", 23, 3, 15, 2))
sketch1.addConstraint(Sketcher.Constraint("Horizontal", 18, 2, 21, 2))
sketch1.addConstraint(Sketcher.Constraint("Horizontal", 6, 2, 33, 2))
sketch1.addConstraint(Sketcher.Constraint("Horizontal", 44, 2, 47, 2))
sketch1.addConstraint(Sketcher.Constraint("Horizontal", 52, 2, 60, 2))
sketch1.addConstraint(Sketcher.Constraint("Horizontal", 72, 2, 78, 2))
sketch1.addConstraint(Sketcher.Constraint("Vertical", 10, 3, 2, 2))
sketch1.addConstraint(Sketcher.Constraint("Vertical", 5, 2, 8, 2))
sketch1.addConstraint(Sketcher.Constraint("Vertical", 15, 2, 19, 2))
sketch1.addConstraint(Sketcher.Constraint("Equal", 40, 1))
sketch1.addConstraint(Sketcher.Constraint("Equal", 50, 3))
sketch1.addConstraint(Sketcher.Constraint("Equal", 46, 7))
sketch1.addConstraint(Sketcher.Constraint("Equal", 38, 15))
sketch1.addConstraint(Sketcher.Constraint("Equal", 35, 18))
sketch1.addConstraint(Sketcher.Constraint("Equal", 77, 53))
sketch1.addConstraint(Sketcher.Constraint("Radius", 54, 0.999999))
sketch1.addConstraint(Sketcher.Constraint("Radius", 4, 0.5))
sketch1.addConstraint(Sketcher.Constraint("DistanceX", 2, 1, 2, 2, 4.5))
sketch1.addConstraint(Sketcher.Constraint("DistanceX", 5, 1, 5, 2, 8.2))
sketch1.addConstraint(Sketcher.Constraint("DistanceX", 16, 2, 16, 1, 1.6))
sketch1.addConstraint(Sketcher.Constraint("DistanceX", 20, 1, 20, 2, 8.3))
sketch1.addConstraint(Sketcher.Constraint("DistanceX", 55, 2, 55, 1, 9.6))
sketch1.addConstraint(Sketcher.Constraint("DistanceX", 59, 1, 59, 2, 7.4))
sketch1.addConstraint(Sketcher.Constraint("DistanceX", 4, 3, -1, 1, 18.0))
sketch1.addConstraint(Sketcher.Constraint("DistanceX", 54, 3, -1, 1, 9.899999))
sketch1.addConstraint(Sketcher.Constraint("DistanceY", 54, 3, -1, 1, 19.500001))
sketch1.addConstraint(Sketcher.Constraint("Diameter", 76, 7.295536))
pad1 = body.newObject("PartDesign::Pad", "Pad")
pad1.Profile = sketch1
pad1.Length = 570

doc.recompute()
